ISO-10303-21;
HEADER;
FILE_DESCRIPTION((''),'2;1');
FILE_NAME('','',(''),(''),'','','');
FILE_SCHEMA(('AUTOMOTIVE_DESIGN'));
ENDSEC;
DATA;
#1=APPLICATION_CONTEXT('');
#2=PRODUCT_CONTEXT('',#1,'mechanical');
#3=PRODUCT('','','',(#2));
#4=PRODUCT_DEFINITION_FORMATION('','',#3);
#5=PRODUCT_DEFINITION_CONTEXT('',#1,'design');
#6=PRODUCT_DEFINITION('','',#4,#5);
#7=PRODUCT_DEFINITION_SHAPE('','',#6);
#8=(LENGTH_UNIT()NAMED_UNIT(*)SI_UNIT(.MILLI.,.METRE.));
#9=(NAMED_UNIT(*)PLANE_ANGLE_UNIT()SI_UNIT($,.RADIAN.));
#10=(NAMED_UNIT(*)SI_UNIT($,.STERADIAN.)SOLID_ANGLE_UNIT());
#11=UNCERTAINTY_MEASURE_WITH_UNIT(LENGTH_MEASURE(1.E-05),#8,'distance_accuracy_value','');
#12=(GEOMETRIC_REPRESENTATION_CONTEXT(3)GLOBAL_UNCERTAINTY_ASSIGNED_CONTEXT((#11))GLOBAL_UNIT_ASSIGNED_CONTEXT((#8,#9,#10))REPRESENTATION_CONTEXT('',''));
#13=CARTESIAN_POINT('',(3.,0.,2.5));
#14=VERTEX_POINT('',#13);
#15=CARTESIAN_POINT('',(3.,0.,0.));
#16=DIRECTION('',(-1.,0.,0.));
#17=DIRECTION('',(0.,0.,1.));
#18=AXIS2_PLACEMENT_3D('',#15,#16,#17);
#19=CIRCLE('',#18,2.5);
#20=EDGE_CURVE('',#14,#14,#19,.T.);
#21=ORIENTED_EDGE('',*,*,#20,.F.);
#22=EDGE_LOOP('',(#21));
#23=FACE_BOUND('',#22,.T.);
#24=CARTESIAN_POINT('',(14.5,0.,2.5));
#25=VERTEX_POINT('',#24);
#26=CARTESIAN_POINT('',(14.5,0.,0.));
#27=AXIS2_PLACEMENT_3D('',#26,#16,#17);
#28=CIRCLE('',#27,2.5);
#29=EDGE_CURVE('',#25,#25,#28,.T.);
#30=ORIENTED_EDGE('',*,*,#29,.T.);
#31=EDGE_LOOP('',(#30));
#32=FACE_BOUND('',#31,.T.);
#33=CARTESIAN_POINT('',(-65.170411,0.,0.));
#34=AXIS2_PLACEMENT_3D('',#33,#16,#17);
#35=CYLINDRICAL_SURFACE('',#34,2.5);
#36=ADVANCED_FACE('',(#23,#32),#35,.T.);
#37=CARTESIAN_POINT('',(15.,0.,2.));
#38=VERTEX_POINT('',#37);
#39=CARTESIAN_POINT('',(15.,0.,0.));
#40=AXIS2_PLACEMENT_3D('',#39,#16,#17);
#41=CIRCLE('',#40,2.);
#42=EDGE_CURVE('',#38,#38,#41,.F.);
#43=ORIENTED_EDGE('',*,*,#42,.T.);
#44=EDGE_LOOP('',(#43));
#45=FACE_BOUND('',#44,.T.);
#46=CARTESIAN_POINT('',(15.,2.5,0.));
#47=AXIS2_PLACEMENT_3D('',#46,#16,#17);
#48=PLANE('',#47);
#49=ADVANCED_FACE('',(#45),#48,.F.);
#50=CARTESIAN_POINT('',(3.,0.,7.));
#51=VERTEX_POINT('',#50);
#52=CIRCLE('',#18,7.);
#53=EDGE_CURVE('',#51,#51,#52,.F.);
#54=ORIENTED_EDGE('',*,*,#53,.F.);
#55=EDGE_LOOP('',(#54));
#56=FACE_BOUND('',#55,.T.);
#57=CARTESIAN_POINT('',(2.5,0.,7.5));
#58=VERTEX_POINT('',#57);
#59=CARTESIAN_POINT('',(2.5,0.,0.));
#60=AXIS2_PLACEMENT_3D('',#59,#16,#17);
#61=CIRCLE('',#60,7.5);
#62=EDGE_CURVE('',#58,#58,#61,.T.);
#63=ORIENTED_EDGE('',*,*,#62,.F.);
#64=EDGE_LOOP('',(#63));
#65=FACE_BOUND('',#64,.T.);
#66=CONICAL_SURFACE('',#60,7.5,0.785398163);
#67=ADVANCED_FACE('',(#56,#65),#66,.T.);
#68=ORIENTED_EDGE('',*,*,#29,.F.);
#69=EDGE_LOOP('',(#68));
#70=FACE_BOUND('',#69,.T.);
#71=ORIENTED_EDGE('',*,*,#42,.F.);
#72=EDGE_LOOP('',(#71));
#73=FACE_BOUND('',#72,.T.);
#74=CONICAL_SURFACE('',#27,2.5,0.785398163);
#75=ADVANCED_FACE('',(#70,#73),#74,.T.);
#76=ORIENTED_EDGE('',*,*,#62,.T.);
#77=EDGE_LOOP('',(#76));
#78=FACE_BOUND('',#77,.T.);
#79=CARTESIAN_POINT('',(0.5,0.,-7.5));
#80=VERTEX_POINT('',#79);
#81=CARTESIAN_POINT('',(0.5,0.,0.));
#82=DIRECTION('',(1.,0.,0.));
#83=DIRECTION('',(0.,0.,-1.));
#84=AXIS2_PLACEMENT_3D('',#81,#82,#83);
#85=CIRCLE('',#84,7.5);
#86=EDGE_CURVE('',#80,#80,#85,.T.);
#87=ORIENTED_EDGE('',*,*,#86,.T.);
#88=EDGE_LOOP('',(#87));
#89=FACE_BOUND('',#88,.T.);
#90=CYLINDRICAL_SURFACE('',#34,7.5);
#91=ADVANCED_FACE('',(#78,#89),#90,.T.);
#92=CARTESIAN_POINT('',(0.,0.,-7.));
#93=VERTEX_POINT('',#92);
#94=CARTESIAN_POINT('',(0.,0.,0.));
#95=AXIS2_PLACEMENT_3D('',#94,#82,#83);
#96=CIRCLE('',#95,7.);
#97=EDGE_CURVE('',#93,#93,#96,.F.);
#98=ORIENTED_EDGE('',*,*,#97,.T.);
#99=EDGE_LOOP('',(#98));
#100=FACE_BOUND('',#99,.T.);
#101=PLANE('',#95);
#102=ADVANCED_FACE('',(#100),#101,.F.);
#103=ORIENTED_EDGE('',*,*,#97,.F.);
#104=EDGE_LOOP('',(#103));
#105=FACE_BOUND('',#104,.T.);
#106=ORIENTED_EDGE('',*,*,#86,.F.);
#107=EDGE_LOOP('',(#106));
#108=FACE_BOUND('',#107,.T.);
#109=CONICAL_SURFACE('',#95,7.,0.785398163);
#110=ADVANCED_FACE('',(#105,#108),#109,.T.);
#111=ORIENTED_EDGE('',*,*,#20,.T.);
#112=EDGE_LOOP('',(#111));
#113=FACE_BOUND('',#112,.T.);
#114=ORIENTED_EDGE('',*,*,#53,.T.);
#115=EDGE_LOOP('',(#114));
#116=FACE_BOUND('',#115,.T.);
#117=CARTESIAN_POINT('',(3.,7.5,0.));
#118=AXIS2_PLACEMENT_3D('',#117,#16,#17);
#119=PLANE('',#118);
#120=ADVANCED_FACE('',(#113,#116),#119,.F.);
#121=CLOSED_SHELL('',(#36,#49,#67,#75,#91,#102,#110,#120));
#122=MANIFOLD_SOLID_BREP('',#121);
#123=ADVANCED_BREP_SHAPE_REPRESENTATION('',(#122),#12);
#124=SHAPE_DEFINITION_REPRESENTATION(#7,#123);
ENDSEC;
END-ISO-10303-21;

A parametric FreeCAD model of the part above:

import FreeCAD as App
import Part
import Sketcher
from FreeCAD import Vector
Q = App.Units.Quantity


def edges_at(feature, points):
    """Names of the edges that pass closest to the given points."""
    edges = feature.Shape.Edges
    near = lambda p: min(range(len(edges)), key=lambda i: edges[i].distToShape(Part.Vertex(*p))[0])
    return sorted({f"Edge{near(p) + 1}" for p in points})


def add_polygon(sketch, points):
    """Adds a closed chain of lines whose ends are joined by coincident constraints."""
    first, n = sketch.GeometryCount, len(points)
    for a, b in zip(points, points[1:] + points[:1]):
        sketch.addGeometry(Part.LineSegment(App.Vector(*a, 0), App.Vector(*b, 0)), False)
    for i in range(n):
        sketch.addConstraint(Sketcher.Constraint("Coincident", first + i, 2, first + (i + 1) % n, 1))

doc = App.newDocument("Part")
body = doc.addObject("PartDesign::Body", "Body")

sketch1 = body.newObject("Sketcher::SketchObject", "Sketch")
sketch1.AttachmentSupport = (doc.getObject("XY_Plane"), [""])
sketch1.MapMode = "FlatFace"
add_polygon(sketch1, [(0, 7.5), (0, 0), (15, 0), (15, 2.5), (3, 2.5), (3, 7.5)])
sketch1.addConstraint([
    Sketcher.Constraint("Vertical", 0),
    Sketcher.Constraint("Horizontal", 1),
    Sketcher.Constraint("Vertical", 2),
    Sketcher.Constraint("Horizontal", 3),
    Sketcher.Constraint("Vertical", 4),
    Sketcher.Constraint("Horizontal", 5),
    Sketcher.Constraint("Coincident", 0, 2, -1, 1),
    Sketcher.Constraint("DistanceX", 1, 1, 1, 2, Q("15 mm")),
    Sketcher.Constraint("DistanceX", 3, 2, 3, 1, Q("12 mm")),
    Sketcher.Constraint("DistanceY", 4, 1, 4, 2, Q("5 mm")),
    Sketcher.Constraint("DistanceY", 0, 2, 0, 1, Q("7.5 mm")),
])
revolution = body.newObject("PartDesign::Revolution", "Revolution")
revolution.Profile = sketch1
revolution.ReferenceAxis = (sketch1, ["H_Axis"])
revolution.Angle = 360
doc.recompute()

chamfer = body.newObject("PartDesign::Chamfer", "Chamfer")
chamfer.Base = (revolution, edges_at(revolution, [(15, 0, -2.5), (3, 0, -7.5), (0, 0, -7.5)]))
chamfer.Size = 0.5

doc.recompute()
